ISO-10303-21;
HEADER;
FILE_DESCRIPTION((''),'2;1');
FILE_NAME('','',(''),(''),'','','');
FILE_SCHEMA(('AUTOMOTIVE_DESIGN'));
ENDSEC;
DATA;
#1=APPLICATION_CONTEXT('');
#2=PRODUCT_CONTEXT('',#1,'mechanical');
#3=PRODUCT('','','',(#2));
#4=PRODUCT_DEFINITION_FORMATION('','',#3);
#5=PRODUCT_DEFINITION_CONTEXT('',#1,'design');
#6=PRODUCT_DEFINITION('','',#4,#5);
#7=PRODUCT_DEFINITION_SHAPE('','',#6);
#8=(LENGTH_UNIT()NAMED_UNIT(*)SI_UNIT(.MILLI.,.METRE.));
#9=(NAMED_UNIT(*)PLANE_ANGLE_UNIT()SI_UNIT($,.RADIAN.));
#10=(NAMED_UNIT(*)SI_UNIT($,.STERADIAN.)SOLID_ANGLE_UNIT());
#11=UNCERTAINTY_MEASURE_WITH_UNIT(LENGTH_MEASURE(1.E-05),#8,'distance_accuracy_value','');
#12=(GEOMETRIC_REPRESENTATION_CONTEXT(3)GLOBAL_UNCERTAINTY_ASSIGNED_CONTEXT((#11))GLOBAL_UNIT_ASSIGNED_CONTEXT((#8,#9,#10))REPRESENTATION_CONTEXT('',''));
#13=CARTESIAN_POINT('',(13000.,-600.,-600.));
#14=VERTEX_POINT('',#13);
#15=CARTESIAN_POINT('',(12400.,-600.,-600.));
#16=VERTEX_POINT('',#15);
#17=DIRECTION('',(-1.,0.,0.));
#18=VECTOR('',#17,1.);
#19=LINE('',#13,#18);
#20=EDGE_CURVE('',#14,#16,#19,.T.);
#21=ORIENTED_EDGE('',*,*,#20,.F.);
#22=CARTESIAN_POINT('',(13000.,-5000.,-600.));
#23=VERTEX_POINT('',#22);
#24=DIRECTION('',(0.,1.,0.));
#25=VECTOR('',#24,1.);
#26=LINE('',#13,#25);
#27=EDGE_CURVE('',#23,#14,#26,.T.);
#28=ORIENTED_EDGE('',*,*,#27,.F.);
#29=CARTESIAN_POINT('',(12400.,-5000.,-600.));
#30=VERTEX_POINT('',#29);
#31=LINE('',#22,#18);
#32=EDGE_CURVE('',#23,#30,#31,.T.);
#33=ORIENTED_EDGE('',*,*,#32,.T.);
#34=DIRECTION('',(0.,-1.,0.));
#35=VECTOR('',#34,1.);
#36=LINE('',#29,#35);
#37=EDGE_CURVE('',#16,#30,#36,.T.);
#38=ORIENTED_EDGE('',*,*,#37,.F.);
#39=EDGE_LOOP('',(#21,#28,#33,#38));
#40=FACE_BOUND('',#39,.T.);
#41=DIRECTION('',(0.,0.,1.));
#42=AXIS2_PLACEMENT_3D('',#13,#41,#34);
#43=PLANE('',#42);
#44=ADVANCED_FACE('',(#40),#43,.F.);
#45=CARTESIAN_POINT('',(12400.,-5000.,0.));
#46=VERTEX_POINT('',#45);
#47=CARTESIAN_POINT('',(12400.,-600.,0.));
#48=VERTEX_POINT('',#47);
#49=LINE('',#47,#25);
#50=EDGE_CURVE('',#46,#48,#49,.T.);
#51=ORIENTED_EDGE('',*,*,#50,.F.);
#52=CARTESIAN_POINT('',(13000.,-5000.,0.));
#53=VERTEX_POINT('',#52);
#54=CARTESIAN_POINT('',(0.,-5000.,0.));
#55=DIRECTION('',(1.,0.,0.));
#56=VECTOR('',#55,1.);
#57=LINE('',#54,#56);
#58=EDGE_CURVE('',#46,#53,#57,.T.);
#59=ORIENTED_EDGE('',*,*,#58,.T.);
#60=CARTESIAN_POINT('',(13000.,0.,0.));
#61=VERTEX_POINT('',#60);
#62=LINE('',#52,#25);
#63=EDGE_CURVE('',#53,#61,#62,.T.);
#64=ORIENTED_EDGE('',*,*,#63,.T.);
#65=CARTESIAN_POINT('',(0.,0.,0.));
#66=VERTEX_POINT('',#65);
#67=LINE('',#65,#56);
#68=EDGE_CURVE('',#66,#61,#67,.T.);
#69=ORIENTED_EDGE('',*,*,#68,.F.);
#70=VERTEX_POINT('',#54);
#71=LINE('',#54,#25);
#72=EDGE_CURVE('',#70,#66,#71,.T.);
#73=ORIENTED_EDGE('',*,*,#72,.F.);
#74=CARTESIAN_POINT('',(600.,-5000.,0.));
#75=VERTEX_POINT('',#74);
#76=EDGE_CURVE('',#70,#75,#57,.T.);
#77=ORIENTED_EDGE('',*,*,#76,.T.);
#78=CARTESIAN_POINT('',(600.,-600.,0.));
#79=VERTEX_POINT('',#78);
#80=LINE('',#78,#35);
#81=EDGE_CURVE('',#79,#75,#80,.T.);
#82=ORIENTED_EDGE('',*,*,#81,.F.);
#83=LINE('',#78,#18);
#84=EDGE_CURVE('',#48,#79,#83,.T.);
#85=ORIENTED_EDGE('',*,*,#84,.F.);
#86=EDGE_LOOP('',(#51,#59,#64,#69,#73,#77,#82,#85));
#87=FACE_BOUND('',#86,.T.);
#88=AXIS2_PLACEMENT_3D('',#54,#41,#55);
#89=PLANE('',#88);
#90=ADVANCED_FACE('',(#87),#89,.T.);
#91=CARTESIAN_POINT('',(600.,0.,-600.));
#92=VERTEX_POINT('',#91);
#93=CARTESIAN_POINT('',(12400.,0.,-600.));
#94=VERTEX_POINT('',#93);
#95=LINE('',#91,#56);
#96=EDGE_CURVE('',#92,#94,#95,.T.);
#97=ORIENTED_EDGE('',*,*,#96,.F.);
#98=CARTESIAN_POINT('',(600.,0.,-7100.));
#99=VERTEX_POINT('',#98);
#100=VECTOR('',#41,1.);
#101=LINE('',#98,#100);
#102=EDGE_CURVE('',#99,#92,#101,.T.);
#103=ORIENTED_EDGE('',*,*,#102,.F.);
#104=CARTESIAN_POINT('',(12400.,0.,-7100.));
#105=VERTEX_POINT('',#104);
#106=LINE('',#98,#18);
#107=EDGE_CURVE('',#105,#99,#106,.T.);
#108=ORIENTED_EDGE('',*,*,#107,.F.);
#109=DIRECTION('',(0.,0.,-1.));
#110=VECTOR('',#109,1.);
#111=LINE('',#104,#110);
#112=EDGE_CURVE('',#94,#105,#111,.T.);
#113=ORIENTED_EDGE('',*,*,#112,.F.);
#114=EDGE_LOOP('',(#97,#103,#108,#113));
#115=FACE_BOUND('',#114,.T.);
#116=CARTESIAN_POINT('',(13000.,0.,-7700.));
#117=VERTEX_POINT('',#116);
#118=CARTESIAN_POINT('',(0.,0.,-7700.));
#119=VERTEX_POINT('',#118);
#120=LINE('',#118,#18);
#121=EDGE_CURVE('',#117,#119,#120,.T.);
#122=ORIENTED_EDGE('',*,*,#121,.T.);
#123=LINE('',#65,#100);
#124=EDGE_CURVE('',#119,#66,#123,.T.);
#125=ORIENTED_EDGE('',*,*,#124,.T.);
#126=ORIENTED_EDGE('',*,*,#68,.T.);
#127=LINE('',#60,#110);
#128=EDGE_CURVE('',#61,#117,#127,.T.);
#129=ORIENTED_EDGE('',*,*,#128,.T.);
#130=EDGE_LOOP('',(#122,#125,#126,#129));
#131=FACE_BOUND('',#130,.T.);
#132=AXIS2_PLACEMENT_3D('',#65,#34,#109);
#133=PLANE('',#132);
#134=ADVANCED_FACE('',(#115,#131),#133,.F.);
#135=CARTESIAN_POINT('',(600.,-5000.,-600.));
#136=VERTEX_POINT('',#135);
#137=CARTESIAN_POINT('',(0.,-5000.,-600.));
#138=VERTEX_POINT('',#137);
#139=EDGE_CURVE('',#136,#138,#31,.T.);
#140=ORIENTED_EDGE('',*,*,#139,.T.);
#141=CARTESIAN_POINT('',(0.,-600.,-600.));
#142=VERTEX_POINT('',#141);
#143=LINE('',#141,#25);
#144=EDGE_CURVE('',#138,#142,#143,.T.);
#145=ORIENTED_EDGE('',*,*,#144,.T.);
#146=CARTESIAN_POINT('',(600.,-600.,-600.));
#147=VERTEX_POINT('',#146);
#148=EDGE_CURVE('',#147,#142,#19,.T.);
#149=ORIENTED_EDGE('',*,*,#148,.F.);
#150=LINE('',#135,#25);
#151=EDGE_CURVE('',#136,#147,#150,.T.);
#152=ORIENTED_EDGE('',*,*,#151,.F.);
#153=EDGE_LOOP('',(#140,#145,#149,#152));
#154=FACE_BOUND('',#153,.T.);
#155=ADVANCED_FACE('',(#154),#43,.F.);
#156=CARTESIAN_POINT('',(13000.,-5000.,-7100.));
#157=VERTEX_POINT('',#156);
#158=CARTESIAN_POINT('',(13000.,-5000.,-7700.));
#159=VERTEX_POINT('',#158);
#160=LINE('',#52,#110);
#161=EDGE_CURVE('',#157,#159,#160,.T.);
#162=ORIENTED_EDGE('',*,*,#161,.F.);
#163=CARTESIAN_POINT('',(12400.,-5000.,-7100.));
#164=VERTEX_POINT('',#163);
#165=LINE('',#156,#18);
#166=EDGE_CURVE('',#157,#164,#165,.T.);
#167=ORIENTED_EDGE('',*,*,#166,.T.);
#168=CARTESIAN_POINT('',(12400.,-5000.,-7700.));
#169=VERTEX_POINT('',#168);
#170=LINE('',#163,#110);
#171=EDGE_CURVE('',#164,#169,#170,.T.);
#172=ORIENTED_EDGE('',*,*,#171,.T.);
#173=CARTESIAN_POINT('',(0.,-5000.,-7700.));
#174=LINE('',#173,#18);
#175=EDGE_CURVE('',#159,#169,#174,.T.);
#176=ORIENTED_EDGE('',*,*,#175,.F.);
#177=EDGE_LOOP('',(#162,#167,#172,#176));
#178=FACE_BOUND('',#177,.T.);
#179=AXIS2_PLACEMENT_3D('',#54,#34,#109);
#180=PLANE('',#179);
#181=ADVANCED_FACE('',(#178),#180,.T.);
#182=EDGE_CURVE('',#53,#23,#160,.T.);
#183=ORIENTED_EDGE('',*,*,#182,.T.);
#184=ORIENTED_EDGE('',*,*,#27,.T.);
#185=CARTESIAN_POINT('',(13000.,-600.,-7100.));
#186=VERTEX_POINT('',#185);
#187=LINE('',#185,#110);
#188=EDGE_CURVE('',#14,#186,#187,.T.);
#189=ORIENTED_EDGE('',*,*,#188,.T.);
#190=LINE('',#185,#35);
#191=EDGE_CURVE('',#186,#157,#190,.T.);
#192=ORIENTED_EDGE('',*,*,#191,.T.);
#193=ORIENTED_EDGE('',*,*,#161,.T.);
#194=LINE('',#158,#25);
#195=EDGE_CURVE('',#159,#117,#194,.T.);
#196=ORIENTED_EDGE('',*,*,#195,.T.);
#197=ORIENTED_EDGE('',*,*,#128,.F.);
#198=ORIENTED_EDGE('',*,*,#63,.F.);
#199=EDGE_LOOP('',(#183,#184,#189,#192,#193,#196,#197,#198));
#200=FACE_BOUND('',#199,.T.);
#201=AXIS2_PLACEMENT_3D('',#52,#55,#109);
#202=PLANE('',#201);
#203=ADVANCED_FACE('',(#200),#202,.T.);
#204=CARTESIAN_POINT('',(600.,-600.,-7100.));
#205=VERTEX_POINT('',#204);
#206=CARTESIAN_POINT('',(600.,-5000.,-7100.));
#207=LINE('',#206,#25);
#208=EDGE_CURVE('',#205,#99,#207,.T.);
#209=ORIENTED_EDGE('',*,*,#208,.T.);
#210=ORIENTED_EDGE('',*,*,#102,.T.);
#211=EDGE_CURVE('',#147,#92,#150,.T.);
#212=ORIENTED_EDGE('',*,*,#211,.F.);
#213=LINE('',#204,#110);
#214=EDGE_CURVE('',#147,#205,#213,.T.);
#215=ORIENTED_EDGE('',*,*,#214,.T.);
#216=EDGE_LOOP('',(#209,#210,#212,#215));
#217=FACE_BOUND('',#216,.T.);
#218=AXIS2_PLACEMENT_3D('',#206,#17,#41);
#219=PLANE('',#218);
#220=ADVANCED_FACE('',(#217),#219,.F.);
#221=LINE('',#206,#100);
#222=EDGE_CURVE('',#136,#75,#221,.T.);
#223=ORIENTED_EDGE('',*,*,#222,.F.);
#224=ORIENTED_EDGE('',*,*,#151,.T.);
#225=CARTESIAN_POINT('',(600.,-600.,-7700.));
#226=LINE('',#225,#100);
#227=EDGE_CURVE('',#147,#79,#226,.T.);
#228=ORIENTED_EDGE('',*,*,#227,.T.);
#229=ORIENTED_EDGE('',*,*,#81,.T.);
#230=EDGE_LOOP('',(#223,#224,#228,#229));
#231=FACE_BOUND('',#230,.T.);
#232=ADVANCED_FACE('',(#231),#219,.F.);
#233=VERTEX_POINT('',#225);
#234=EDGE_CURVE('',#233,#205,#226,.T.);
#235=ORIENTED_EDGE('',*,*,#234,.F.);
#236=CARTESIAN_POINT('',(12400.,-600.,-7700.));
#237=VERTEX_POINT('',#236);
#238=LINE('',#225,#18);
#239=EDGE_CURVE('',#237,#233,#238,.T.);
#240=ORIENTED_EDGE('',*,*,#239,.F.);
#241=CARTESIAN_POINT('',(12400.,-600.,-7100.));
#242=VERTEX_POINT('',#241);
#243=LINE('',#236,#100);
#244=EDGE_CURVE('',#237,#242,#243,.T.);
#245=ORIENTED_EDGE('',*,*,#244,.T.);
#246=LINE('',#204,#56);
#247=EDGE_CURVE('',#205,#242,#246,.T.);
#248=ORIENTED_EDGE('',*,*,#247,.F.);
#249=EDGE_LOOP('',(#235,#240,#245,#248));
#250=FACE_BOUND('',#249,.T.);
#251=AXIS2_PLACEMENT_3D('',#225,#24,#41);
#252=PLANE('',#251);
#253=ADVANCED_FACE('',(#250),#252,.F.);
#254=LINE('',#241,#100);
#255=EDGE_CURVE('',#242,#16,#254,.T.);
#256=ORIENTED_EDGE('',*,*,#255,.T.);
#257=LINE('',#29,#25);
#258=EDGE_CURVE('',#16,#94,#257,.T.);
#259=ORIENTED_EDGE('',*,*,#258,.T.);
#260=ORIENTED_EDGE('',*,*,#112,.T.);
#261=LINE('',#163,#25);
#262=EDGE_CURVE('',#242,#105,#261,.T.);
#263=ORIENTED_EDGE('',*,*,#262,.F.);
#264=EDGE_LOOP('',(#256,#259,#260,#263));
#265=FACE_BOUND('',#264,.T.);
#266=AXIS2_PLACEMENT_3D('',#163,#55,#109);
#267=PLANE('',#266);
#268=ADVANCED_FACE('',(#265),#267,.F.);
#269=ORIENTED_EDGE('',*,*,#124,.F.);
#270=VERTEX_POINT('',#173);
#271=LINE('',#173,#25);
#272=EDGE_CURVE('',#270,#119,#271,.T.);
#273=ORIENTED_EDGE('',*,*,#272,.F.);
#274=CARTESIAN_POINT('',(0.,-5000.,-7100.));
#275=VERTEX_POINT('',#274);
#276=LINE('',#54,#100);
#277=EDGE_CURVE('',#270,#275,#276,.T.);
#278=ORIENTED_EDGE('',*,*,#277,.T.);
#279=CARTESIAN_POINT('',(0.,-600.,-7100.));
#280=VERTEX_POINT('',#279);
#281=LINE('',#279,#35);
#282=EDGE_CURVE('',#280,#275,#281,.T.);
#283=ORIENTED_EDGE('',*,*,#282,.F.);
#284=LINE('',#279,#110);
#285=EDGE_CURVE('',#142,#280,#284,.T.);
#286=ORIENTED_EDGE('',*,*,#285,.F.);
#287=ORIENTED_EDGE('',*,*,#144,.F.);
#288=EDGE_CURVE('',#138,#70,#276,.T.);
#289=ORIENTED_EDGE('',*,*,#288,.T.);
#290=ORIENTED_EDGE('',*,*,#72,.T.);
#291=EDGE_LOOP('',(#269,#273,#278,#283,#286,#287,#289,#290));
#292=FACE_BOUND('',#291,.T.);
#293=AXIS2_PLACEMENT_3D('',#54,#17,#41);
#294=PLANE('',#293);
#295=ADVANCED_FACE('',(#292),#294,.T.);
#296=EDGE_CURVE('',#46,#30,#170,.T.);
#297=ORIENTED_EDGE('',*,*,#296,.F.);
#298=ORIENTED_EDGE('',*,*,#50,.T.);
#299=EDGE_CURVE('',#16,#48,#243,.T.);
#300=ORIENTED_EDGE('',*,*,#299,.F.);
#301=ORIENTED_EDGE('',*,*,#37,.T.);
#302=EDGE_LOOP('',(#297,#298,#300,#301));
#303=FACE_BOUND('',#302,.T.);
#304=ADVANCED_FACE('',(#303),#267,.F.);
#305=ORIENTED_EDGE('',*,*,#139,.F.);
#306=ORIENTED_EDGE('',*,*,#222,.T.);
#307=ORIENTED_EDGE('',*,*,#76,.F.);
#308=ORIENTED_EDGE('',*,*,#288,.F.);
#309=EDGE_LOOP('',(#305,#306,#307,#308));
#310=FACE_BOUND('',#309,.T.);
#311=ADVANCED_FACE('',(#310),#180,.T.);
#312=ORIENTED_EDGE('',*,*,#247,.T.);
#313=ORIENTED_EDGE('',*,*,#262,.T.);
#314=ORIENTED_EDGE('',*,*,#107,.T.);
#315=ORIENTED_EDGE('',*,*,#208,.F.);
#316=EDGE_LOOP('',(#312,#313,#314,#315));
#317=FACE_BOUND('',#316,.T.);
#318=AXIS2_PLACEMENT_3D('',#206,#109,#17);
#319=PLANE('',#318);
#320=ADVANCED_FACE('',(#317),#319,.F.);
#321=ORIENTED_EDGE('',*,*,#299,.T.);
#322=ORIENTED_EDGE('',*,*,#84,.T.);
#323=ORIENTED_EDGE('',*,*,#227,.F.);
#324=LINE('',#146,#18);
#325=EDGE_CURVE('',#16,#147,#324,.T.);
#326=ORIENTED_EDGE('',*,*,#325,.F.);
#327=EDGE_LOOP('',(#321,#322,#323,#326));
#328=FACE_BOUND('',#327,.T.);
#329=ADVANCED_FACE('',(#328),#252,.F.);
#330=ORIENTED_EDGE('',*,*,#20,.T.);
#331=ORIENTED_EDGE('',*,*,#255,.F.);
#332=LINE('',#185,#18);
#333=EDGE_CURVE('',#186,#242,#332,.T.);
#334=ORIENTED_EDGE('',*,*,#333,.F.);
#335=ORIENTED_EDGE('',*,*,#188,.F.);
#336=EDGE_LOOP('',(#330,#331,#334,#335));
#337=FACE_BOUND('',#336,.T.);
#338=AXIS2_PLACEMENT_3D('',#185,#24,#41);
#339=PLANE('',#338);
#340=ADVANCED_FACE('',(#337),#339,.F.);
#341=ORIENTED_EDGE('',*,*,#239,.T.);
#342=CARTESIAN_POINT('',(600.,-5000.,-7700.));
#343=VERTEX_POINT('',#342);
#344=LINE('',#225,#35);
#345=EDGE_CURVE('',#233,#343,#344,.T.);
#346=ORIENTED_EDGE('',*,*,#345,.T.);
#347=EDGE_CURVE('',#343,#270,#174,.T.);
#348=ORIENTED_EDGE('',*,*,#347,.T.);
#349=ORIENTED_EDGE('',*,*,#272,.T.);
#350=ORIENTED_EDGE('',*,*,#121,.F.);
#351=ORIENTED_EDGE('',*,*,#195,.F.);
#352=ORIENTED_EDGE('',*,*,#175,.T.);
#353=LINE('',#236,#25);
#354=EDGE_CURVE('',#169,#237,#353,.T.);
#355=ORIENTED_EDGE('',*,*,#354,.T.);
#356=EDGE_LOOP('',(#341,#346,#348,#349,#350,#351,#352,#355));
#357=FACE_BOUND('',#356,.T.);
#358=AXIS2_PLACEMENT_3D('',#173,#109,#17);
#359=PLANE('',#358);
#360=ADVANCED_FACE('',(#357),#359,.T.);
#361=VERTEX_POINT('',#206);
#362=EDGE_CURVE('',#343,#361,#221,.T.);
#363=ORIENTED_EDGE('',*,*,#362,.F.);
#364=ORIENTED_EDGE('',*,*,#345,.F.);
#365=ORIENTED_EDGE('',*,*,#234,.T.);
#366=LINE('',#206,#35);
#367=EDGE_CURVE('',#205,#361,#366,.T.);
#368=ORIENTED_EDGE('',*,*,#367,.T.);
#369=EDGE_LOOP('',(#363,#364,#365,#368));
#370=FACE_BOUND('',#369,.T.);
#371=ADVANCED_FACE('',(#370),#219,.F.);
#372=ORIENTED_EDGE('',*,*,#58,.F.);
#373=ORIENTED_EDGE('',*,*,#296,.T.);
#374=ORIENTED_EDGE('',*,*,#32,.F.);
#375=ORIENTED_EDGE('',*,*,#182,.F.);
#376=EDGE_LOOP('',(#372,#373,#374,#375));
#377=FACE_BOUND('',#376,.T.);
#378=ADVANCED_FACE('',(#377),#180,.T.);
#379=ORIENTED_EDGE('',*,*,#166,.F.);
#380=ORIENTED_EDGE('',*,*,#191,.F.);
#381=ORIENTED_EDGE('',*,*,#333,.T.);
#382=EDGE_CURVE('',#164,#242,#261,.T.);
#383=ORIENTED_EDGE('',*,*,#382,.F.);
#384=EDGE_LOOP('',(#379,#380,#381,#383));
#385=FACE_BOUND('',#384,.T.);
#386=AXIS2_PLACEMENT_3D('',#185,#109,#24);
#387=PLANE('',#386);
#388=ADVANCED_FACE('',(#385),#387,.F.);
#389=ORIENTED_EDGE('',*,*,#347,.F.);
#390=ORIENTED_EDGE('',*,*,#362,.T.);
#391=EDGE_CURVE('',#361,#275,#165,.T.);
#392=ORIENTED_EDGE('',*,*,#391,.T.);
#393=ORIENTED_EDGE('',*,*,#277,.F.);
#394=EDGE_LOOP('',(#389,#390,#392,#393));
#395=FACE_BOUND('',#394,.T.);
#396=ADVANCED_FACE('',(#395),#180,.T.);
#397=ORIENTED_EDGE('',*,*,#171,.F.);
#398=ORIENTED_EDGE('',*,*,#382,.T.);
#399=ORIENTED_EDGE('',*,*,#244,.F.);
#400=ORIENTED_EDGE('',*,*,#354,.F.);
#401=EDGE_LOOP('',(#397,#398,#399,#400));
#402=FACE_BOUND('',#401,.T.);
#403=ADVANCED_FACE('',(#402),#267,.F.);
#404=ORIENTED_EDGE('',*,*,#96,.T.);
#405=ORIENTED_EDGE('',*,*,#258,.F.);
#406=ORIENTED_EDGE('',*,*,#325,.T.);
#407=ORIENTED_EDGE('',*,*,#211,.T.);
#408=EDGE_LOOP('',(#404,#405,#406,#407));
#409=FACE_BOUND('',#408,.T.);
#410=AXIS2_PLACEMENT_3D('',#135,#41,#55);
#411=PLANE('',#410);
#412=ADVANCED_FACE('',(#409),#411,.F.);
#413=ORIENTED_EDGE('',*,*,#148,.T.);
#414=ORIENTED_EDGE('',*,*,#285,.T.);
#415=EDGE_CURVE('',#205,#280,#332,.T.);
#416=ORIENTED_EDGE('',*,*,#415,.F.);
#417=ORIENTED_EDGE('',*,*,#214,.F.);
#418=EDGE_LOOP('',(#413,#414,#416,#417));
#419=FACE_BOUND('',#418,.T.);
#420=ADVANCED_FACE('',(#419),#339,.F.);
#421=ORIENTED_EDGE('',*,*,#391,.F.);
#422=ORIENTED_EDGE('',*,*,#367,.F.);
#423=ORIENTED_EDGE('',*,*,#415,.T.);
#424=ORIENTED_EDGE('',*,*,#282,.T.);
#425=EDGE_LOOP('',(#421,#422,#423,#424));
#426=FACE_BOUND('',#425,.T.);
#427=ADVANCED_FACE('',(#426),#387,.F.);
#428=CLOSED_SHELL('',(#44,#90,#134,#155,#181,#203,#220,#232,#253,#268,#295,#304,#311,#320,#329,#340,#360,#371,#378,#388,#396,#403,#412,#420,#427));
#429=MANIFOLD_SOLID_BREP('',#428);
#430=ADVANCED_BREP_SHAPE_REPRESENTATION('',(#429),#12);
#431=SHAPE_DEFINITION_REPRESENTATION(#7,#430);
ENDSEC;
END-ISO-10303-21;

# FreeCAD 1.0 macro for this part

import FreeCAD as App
import Part
import Sketcher

V = App.Vector
Q = App.Units.Quantity


def add_polygon(sketch, points):
    """Adds a closed chain of lines whose ends are joined by coincident constraints."""
    first, n = sketch.GeometryCount, len(points)
    for a, b in zip(points, points[1:] + points[:1]):
        sketch.addGeometry(Part.LineSegment(App.Vector(*a, 0), App.Vector(*b, 0)), False)
    for i in range(n):
        sketch.addConstraint(Sketcher.Constraint("Coincident", first + i, 2, first + (i + 1) % n, 1))

doc = App.newDocument("Part")
body = doc.addObject("PartDesign::Body", "Body")

sketch1 = doc.addObject("Sketcher::SketchObject", "Sketch")
body.addObject(sketch1)
sketch1.AttachmentSupport = (doc.XZ_Plane, [""])
sketch1.MapMode = "FlatFace"
add_polygon(sketch1, [(0, -7700), (0, 0), (13000, 0), (13000, -7700)])
sketch1.addConstraint(Sketcher.Constraint("Vertical", 0))
sketch1.addConstraint(Sketcher.Constraint("Horizontal", 1))
sketch1.addConstraint(Sketcher.Constraint("Vertical", 2))
sketch1.addConstraint(Sketcher.Constraint("Horizontal", 3))
sketch1.addConstraint(Sketcher.Constraint("Coincident", 0, 2, -1, 1))
sketch1.addConstraint(Sketcher.Constraint("DistanceX", 1, 1, 1, 2, Q("13000 mm")))
sketch1.addConstraint(Sketcher.Constraint("DistanceY", 0, 1, 0, 2, Q("7700 mm")))
pad1 = doc.addObject("PartDesign::Pad", "Pad")
body.addObject(pad1)
pad1.Profile = sketch1
pad1.Length = 5000

sketch2 = doc.addObject("Sketcher::SketchObject", "Sketch001")
body.addObject(sketch2)
sketch2.AttachmentSupport = (doc.XZ_Plane, [""])
sketch2.MapMode = "FlatFace"
add_polygon(sketch2, [(600, -7100), (600, -600), (12400, -600), (12400, -7100)])
sketch2.addConstraint(Sketcher.Constraint("Vertical", 0))
sketch2.addConstraint(Sketcher.Constraint("Horizontal", 1))
sketch2.addConstraint(Sketcher.Constraint("Vertical", 2))
sketch2.addConstraint(Sketcher.Constraint("Horizontal", 3))
sketch2.addConstraint(Sketcher.Constraint("DistanceX", 1, 1, 1, 2, Q("11800 mm")))
sketch2.addConstraint(Sketcher.Constraint("DistanceY", 0, 1, 0, 2, Q("6500 mm")))
sketch2.addConstraint(Sketcher.Constraint("DistanceX", -1, 1, 0, 2, Q("600 mm")))
sketch2.addConstraint(Sketcher.Constraint("DistanceY", 0, 2, -1, 1, Q("600 mm")))
pocket1 = doc.addObject("PartDesign::Pocket", "Pocket")
body.addObject(pocket1)
pocket1.Profile = sketch2
pocket1.Length = 5000
pocket1.Reversed = True

sketch3 = doc.addObject("Sketcher::SketchObject", "Sketch002")
body.addObject(sketch3)
sketch3.AttachmentSupport = (doc.XY_Plane, [""])
sketch3.MapMode = "FlatFace"
add_polygon(sketch3, [(600, -600), (600, -5000), (12400, -5000), (12400, -600)])
sketch3.addConstraint(Sketcher.Constraint("Vertical", 0))
sketch3.addConstraint(Sketcher.Constraint("Horizontal", 1))
sketch3.addConstraint(Sketcher.Constraint("Vertical", 2))
sketch3.addConstraint(Sketcher.Constraint("Horizontal", 3))
sketch3.addConstraint(Sketcher.Constraint("DistanceX", 1, 1, 1, 2, Q("11800 mm")))
sketch3.addConstraint(Sketcher.Constraint("DistanceY", 0, 2, 0, 1, Q("4400 mm")))
sketch3.addConstraint(Sketcher.Constraint("DistanceX", -1, 1, 0, 2, Q("600 mm")))
sketch3.addConstraint(Sketcher.Constraint("DistanceY", 0, 2, -1, 1, Q("5000 mm")))
pocket2 = doc.addObject("PartDesign::Pocket", "Pocket001")
body.addObject(pocket2)
pocket2.Profile = sketch3
pocket2.Type = "ThroughAll"

sketch4 = doc.addObject("Sketcher::SketchObject", "Sketch003")
body.addObject(sketch4)
sketch4.AttachmentSupport = (doc.YZ_Plane, [""])
sketch4.MapMode = "FlatFace"
add_polygon(sketch4, [(-600, -7100), (-5000, -7100), (-5000, -600), (-600, -600)])
sketch4.addConstraint(Sketcher.Constraint("Horizontal", 0))
sketch4.addConstraint(Sketcher.Constraint("Vertical", 1))
sketch4.addConstraint(Sketcher.Constraint("Horizontal", 2))
sketch4.addConstraint(Sketcher.Constraint("Vertical", 3))
sketch4.addConstraint(Sketcher.Constraint("DistanceX", 0, 2, 0, 1, Q("4400 mm")))
sketch4.addConstraint(Sketcher.Constraint("DistanceY", 1, 1, 1, 2, Q("6500 mm")))
sketch4.addConstraint(Sketcher.Constraint("DistanceX", 0, 2, -1, 1, Q("5000 mm")))
sketch4.addConstraint(Sketcher.Constraint("DistanceY", 0, 2, -1, 1, Q("7100 mm")))
pocket3 = doc.addObject("PartDesign::Pocket", "Pocket002")
body.addObject(pocket3)
pocket3.Profile = sketch4
pocket3.Type = "ThroughAll"
pocket3.Reversed = True

doc.recompute()
